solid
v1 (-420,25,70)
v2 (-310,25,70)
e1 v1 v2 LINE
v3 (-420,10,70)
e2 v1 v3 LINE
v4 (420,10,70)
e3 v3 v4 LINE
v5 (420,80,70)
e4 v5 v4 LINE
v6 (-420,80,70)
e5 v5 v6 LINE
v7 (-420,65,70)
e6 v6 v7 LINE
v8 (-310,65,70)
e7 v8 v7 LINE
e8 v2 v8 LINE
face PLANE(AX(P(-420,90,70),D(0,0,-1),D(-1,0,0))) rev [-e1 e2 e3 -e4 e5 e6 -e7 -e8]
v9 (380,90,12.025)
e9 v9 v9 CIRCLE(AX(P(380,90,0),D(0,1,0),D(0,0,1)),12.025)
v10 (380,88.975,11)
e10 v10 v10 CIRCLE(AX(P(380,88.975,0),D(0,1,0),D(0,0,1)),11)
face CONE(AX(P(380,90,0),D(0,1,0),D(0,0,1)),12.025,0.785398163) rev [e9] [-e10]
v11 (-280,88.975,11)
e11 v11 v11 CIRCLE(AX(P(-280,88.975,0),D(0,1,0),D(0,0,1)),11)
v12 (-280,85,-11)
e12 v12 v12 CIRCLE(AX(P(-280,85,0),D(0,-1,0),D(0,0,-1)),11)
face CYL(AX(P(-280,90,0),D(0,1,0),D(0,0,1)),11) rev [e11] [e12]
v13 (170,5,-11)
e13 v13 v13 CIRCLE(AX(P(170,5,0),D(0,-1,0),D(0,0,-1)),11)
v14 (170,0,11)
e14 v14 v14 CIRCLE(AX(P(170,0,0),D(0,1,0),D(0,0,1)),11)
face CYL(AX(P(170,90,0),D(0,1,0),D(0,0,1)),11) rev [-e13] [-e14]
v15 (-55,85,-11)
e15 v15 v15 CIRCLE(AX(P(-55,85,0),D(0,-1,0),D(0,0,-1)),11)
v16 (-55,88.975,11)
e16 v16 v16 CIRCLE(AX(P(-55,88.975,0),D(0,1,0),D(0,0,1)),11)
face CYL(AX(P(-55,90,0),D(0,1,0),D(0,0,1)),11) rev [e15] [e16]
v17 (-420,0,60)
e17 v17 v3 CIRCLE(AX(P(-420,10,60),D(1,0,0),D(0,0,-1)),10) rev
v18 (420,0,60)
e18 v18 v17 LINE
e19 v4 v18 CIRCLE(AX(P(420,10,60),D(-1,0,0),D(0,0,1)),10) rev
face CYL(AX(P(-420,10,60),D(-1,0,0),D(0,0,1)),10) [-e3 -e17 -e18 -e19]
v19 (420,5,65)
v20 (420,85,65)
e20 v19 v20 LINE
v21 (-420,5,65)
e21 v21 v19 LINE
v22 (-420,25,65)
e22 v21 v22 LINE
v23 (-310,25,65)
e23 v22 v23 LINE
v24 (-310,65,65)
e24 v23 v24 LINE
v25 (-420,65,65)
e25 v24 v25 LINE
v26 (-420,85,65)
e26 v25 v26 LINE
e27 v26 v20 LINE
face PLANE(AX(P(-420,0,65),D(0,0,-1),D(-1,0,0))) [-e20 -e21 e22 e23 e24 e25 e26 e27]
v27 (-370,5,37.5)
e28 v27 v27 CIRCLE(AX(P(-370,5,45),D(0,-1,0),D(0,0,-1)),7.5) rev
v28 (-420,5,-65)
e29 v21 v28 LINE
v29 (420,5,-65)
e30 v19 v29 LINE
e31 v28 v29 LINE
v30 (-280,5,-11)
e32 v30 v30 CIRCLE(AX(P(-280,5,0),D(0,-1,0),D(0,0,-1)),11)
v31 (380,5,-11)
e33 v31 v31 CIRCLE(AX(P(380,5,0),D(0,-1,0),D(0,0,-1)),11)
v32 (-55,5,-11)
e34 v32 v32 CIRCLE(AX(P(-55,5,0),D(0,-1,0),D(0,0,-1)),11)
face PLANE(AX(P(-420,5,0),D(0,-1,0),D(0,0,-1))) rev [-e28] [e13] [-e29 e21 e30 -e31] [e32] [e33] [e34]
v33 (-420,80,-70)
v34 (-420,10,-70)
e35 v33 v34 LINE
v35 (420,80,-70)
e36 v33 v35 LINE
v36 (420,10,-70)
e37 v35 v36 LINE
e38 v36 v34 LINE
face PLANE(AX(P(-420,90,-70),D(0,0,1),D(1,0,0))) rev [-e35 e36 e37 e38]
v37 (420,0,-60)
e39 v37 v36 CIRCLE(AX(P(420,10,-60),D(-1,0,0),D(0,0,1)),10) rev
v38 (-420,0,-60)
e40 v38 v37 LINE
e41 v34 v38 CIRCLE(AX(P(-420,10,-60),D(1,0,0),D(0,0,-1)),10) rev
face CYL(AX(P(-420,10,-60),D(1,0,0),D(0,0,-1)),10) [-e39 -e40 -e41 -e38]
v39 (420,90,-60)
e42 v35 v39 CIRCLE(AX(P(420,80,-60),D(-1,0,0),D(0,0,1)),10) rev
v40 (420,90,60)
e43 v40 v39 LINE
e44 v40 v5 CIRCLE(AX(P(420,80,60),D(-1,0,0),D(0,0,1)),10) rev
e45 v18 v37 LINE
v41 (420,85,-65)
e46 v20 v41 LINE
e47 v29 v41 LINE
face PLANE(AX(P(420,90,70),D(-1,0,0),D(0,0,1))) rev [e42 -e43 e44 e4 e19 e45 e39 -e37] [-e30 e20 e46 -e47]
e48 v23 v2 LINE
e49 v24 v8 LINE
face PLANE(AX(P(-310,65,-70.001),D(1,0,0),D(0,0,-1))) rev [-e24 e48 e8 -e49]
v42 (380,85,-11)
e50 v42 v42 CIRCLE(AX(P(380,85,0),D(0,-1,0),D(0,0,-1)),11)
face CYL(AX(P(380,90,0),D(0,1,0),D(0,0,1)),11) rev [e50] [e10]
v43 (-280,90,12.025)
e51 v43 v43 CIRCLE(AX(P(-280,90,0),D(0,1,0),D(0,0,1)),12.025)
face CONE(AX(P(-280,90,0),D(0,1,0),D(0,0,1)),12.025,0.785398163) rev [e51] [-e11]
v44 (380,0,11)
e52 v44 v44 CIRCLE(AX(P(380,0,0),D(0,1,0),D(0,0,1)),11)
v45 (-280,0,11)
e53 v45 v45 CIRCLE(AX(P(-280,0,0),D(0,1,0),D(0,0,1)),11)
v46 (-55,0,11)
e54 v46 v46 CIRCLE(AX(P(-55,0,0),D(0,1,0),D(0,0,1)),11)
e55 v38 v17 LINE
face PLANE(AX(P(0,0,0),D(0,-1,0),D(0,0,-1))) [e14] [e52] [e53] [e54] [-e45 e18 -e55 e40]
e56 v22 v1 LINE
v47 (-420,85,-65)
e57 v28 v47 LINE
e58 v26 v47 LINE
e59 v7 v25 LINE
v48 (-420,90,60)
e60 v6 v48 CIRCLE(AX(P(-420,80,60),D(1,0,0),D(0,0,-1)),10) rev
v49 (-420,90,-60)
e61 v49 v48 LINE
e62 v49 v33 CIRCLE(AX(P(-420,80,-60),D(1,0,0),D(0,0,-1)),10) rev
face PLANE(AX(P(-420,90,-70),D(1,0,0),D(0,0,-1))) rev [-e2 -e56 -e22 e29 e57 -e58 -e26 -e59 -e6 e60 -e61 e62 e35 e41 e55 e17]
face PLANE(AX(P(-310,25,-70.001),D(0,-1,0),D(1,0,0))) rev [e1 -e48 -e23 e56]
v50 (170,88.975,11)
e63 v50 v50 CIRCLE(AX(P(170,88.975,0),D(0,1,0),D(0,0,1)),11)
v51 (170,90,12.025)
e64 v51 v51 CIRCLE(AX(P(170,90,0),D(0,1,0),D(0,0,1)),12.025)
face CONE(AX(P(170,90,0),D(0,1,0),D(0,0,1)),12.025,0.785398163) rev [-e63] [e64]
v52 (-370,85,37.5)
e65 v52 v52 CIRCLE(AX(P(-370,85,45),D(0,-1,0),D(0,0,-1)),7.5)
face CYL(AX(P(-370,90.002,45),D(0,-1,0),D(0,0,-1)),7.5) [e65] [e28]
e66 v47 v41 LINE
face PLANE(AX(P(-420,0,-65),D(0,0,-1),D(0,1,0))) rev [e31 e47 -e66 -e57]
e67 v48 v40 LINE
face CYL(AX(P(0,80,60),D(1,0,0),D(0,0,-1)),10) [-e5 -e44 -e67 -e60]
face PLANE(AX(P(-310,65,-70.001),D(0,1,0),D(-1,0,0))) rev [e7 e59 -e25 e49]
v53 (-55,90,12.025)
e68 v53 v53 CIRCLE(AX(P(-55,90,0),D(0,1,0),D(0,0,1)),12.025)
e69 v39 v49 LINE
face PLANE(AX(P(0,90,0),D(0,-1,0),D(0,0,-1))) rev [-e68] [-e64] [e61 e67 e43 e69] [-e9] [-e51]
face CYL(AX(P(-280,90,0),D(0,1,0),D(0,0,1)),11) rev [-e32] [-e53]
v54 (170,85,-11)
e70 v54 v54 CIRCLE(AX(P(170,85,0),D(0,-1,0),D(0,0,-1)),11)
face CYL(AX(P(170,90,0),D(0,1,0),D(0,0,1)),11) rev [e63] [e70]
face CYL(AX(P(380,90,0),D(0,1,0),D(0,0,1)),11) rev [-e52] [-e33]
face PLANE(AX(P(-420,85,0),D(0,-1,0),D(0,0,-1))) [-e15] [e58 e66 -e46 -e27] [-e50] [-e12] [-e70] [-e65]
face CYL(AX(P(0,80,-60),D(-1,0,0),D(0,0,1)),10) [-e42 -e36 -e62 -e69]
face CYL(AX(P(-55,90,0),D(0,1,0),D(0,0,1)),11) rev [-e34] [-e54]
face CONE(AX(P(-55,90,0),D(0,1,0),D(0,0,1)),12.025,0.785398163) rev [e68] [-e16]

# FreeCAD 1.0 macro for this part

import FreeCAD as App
import Part
import Sketcher


def edges_at(feature, points):
    """Names of the edges that pass closest to the given points."""
    edges = feature.Shape.Edges
    near = lambda p: min(range(len(edges)), key=lambda i: edges[i].distToShape(Part.Vertex(*p))[0])
    return sorted({f"Edge{near(p) + 1}" for p in points})

doc = App.newDocument("Part")
body = doc.addObject("PartDesign::Body", "Body")

sketch1 = body.newObject("Sketcher::SketchObject", "Sketch")
sketch1.AttachmentSupport = (doc.getObject("XZ_Plane"), [""])
sketch1.MapMode = "FlatFace"
sketch1.addGeometry(Part.LineSegment(App.Vector(-420, -70, 0), App.Vector(-420, 70, 0)), False)
sketch1.addGeometry(Part.LineSegment(App.Vector(-420, 70, 0), App.Vector(420, 70, 0)), False)
sketch1.addGeometry(Part.LineSegment(App.Vector(420, 70, 0), App.Vector(420, -70, 0)), False)
sketch1.addGeometry(Part.LineSegment(App.Vector(420, -70, 0), App.Vector(-420, -70, 0)), False)
sketch1.addConstraint(Sketcher.Constraint("Coincident", 0, 2, 1, 1))
sketch1.addConstraint(Sketcher.Constraint("Coincident", 1, 2, 2, 1))
sketch1.addConstraint(Sketcher.Constraint("Coincident", 2, 2, 3, 1))
sketch1.addConstraint(Sketcher.Constraint("Coincident", 3, 2, 0, 1))
sketch1.addConstraint(Sketcher.Constraint("Vertical", 0))
sketch1.addConstraint(Sketcher.Constraint("Horizontal", 1))
sketch1.addConstraint(Sketcher.Constraint("Vertical", 2))
sketch1.addConstraint(Sketcher.Constraint("Horizontal", 3))
sketch1.addConstraint(Sketcher.Constraint("Symmetric", 0, 2, 2, 2, -1, 1))
sketch1.addConstraint(Sketcher.Constraint("DistanceX", 1, 1, 1, 2, 840.0))
sketch1.addConstraint(Sketcher.Constraint("DistanceY", 0, 1, 0, 2, 140.0))
pad1 = body.newObject("PartDesign::Pad", "Pad")
pad1.Profile = sketch1
pad1.Length = 90
pad1.Reversed = True

sketch2 = body.newObject("Sketcher::SketchObject", "Sketch001")
sketch2.AttachmentSupport = (doc.getObject("YZ_Plane"), [""])
sketch2.MapMode = "FlatFace"
sketch2.AttachmentOffset = App.Placement(App.Vector(0, 0, 420), App.Rotation())
sketch2.addGeometry(Part.LineSegment(App.Vector(85, 65, 0), App.Vector(5, 65, 0)), False)
sketch2.addGeometry(Part.LineSegment(App.Vector(5, 65, 0), App.Vector(5, -65, 0)), False)
sketch2.addGeometry(Part.LineSegment(App.Vector(5, -65, 0), App.Vector(85, -65, 0)), False)
sketch2.addGeometry(Part.LineSegment(App.Vector(85, -65, 0), App.Vector(85, 65, 0)), False)
sketch2.addConstraint(Sketcher.Constraint("Coincident", 0, 2, 1, 1))
sketch2.addConstraint(Sketcher.Constraint("Coincident", 1, 2, 2, 1))
sketch2.addConstraint(Sketcher.Constraint("Coincident", 2, 2, 3, 1))
sketch2.addConstraint(Sketcher.Constraint("Coincident", 3, 2, 0, 1))
sketch2.addConstraint(Sketcher.Constraint("Horizontal", 0))
sketch2.addConstraint(Sketcher.Constraint("Vertical", 1))
sketch2.addConstraint(Sketcher.Constraint("Horizontal", 2))
sketch2.addConstraint(Sketcher.Constraint("Vertical", 3))
sketch2.addConstraint(Sketcher.Constraint("DistanceX", 0, 2, 0, 1, 80.0))
sketch2.addConstraint(Sketcher.Constraint("DistanceY", 1, 2, 1, 1, 130.0))
sketch2.addConstraint(Sketcher.Constraint("DistanceX", -1, 1, 0, 2, 5.0))
sketch2.addConstraint(Sketcher.Constraint("DistanceY", -1, 1, 0, 2, 65.0))
pocket1 = body.newObject("PartDesign::Pocket", "Pocket")
pocket1.Profile = sketch2
pocket1.Type = "ThroughAll"
doc.recompute()

fillet = body.newObject("PartDesign::Fillet", "Fillet")
fillet.Base = (pocket1, edges_at(pocket1, [(0, 0, -70), (0, 90, -70)]))
fillet.Radius = 10
doc.recompute()

fillet2 = body.newObject("PartDesign::Fillet", "Fillet001")
fillet2.Base = (fillet, edges_at(fillet, [(0, 90, 70), (0, 0, 70)]))
fillet2.Radius = 10

sketch3 = body.newObject("Sketcher::SketchObject", "Sketch002")
sketch3.AttachmentSupport = (doc.getObject("XZ_Plane"), [""])
sketch3.MapMode = "FlatFace"
sketch3.AttachmentOffset = App.Placement(App.Vector(0, 0, -90), App.Rotation())
sketch3.addGeometry(Part.Circle(App.Vector(-55, 0, 0), App.Vector(0, 0, 1), 11), False)
sketch3.addGeometry(Part.Circle(App.Vector(170, 0, 0), App.Vector(0, 0, 1), 11), False)
sketch3.addGeometry(Part.Circle(App.Vector(-280, 0, 0), App.Vector(0, 0, 1), 11), False)
sketch3.addGeometry(Part.Circle(App.Vector(380, 0, 0), App.Vector(0, 0, 1), 11), False)
sketch3.addConstraint(Sketcher.Constraint("Equal", 0, 1))
sketch3.addConstraint(Sketcher.Constraint("Equal", 1, 2))
sketch3.addConstraint(Sketcher.Constraint("Equal", 2, 3))
sketch3.addConstraint(Sketcher.Constraint("PointOnObject", 0, 3, -1))
sketch3.addConstraint(Sketcher.Constraint("PointOnObject", 1, 3, -1))
sketch3.addConstraint(Sketcher.Constraint("PointOnObject", 2, 3, -1))
sketch3.addConstraint(Sketcher.Constraint("PointOnObject", 3, 3, -1))
sketch3.addConstraint(Sketcher.Constraint("Diameter", 0, 22.0))
sketch3.addConstraint(Sketcher.Constraint("DistanceX", 0, 3, -1, 1, 55.0))
sketch3.addConstraint(Sketcher.Constraint("DistanceX", -1, 1, 1, 3, 170.0))
sketch3.addConstraint(Sketcher.Constraint("DistanceX", 2, 3, -1, 1, 280.0))
sketch3.addConstraint(Sketcher.Constraint("DistanceX", -1, 1, 3, 3, 380.0))
doc.recompute()
hole = body.newObject("PartDesign::Hole", "Hole")
hole.Profile = sketch3
hole.ThreadType = "None"
hole.Diameter = 22
hole.DepthType = "ThroughAll"
hole.HoleCutType = "Countersink"
hole.HoleCutDiameter = 24.05
hole.HoleCutCountersinkAngle = 90
hole.Reversed = True

sketch4 = body.newObject("Sketcher::SketchObject", "Sketch003")
sketch4.AttachmentSupport = (doc.getObject("XY_Plane"), [""])
sketch4.MapMode = "FlatFace"
sketch4.AttachmentOffset = App.Placement(App.Vector(0, 0, 70), App.Rotation())
sketch4.addGeometry(Part.LineSegment(App.Vector(-437, 65, 0), App.Vector(-437, 25, 0)), False)
sketch4.addGeometry(Part.LineSegment(App.Vector(-437, 25, 0), App.Vector(-310, 25, 0)), False)
sketch4.addGeometry(Part.LineSegment(App.Vector(-310, 25, 0), App.Vector(-310, 65, 0)), False)
sketch4.addGeometry(Part.LineSegment(App.Vector(-310, 65, 0), App.Vector(-437, 65, 0)), False)
sketch4.addConstraint(Sketcher.Constraint("Coincident", 0, 2, 1, 1))
sketch4.addConstraint(Sketcher.Constraint("Coincident", 1, 2, 2, 1))
sketch4.addConstraint(Sketcher.Constraint("Coincident", 2, 2, 3, 1))
sketch4.addConstraint(Sketcher.Constraint("Coincident", 3, 2, 0, 1))
sketch4.addConstraint(Sketcher.Constraint("Vertical", 0))
sketch4.addConstraint(Sketcher.Constraint("Horizontal", 1))
sketch4.addConstraint(Sketcher.Constraint("Vertical", 2))
sketch4.addConstraint(Sketcher.Constraint("Horizontal", 3))
sketch4.addConstraint(Sketcher.Constraint("DistanceX", 1, 1, 1, 2, 127.0))
sketch4.addConstraint(Sketcher.Constraint("DistanceY", 0, 2, 0, 1, 40.0))
sketch4.addConstraint(Sketcher.Constraint("DistanceX", 0, 2, -1, 1, 437.0))
sketch4.addConstraint(Sketcher.Constraint("DistanceY", -1, 1, 0, 2, 25.0))
pocket2 = body.newObject("PartDesign::Pocket", "Pocket001")
pocket2.Profile = sketch4
pocket2.Type = "UpToFirst"

sketch5 = body.newObject("Sketcher::SketchObject", "Sketch004")
sketch5.AttachmentSupport = (doc.getObject("XZ_Plane"), [""])
sketch5.MapMode = "FlatFace"
sketch5.AttachmentOffset = App.Placement(App.Vector(0, 0, -5), App.Rotation())
sketch5.addGeometry(Part.Circle(App.Vector(-370, 45, 0), App.Vector(0, 0, 1), 8), False)
sketch5.addConstraint(Sketcher.Constraint("Diameter", 0, 15.0))
sketch5.addConstraint(Sketcher.Constraint("DistanceX", 0, 3, -1, 1, 370.0))
sketch5.addConstraint(Sketcher.Constraint("DistanceY", -1, 1, 0, 3, 45.0))
pad2 = body.newObject("PartDesign::Pad", "Pad001")
pad2.Profile = sketch5
pad2.Type = "UpToFirst"
pad2.Reversed = True

doc.recompute()
